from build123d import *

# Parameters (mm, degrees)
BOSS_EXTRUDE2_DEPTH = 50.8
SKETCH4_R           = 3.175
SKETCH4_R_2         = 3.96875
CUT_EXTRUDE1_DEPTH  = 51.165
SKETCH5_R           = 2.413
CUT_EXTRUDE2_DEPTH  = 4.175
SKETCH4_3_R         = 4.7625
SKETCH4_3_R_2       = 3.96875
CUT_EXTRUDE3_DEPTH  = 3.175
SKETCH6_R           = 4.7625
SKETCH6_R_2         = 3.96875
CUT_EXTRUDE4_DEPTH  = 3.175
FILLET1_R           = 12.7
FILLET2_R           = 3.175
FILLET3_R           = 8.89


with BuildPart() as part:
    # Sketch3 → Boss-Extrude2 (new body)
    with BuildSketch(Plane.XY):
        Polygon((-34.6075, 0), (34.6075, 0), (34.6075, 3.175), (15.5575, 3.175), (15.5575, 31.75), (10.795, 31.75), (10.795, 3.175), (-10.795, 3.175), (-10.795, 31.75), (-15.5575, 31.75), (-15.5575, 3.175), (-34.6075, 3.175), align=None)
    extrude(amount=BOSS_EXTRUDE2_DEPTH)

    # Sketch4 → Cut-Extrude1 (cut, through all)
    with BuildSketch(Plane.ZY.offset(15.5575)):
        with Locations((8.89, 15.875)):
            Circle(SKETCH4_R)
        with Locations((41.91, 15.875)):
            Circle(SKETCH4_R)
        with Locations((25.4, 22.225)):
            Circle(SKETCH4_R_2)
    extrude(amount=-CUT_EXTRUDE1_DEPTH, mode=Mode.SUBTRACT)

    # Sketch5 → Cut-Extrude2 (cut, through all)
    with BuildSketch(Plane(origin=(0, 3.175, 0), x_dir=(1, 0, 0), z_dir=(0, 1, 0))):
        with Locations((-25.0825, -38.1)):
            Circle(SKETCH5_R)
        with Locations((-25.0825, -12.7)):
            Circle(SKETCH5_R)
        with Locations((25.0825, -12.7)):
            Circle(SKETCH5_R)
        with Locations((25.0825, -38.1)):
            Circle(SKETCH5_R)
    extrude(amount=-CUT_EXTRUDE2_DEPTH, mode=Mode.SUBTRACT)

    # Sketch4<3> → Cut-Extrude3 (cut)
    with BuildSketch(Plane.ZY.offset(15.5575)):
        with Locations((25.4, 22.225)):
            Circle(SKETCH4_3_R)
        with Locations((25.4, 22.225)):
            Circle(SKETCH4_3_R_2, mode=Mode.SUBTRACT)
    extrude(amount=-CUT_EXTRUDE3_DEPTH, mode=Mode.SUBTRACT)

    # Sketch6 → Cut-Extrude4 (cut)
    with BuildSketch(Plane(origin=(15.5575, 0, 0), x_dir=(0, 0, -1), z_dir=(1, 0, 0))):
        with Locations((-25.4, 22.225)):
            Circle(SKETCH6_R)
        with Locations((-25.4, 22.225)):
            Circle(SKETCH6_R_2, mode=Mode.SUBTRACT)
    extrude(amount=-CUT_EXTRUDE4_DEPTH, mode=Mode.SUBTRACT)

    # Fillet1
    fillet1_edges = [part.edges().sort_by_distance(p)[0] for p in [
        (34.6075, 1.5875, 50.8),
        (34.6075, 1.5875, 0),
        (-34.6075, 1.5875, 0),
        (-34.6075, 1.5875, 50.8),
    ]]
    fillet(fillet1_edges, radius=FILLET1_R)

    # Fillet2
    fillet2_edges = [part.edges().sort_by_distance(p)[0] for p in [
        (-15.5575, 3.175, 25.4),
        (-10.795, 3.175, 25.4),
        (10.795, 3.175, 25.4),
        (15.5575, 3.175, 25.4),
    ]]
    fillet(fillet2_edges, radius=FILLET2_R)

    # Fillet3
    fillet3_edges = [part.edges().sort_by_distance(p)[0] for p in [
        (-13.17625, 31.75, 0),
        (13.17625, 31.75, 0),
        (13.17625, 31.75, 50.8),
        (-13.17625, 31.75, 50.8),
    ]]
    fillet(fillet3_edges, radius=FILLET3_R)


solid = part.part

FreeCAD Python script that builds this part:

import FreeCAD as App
import Part
import Sketcher
from FreeCAD import Vector
Q = App.Units.Quantity


def edges_at(feature, points):
    """Names of the edges that pass closest to the given points."""
    edges = feature.Shape.Edges
    near = lambda p: min(range(len(edges)), key=lambda i: edges[i].distToShape(Part.Vertex(*p))[0])
    return sorted({f"Edge{near(p) + 1}" for p in points})

doc = App.newDocument("Part")
params = doc.addObject("Spreadsheet::Sheet", "Params")
for row, (alias, value) in enumerate([
    ("sketch1_width", "0.75 in"),
    ("sketch1_width2", "0.85 in"),
    ("sketch1_width3", "2.725 in"),
    ("sketch1_height", "0.125 in"),
    ("sketch1_height2", "1.125 in"),
    ("pad1_length", "2 in"),
    ("sketch2_diameter", "0.25 in"),
    ("sketch2_diameter2", "0.3125 in"),
    ("sketch3_diameter", "0.19 in"),
    ("sketch4_diameter", "0.375 in"),
    ("sketch4_diameter2", "0.3125 in"),
    ("pocket3_length", "0.125 in"),
    ("sketch5_diameter", "0.375 in"),
    ("sketch5_diameter2", "0.3125 in"),
    ("pocket4_length", "0.125 in"),
    ("fillet_radius", "0.5 in"),
    ("fillet2_radius", "0.125 in"),
    ("fillet3_radius", "0.35 in"),
], start=1):
    params.set(f"A{row}", alias)
    params.set(f"B{row}", "=" + value)
    params.setAlias(f"B{row}", alias)

body = doc.addObject("PartDesign::Body", "Body")

# Sketch on XY plane
sketch1 = body.newObject("Sketcher::SketchObject", "Sketch")
sketch1.AttachmentSupport = (doc.getObject("XY_Plane"), [""])
sketch1.MapMode = "FlatFace"
sketch1.addGeometry([
    Part.LineSegment(Vector(-34.6075, 0, 0), Vector(34.6075, 0, 0)),  # 0
    Part.LineSegment(Vector(34.6075, 0, 0), Vector(34.6075, 3.175, 0)),  # 1
    Part.LineSegment(Vector(34.6075, 3.175, 0), Vector(15.5575, 3.175, 0)),  # 2
    Part.LineSegment(Vector(15.5575, 3.175, 0), Vector(15.5575, 31.75, 0)),  # 3
    Part.LineSegment(Vector(15.5575, 31.75, 0), Vector(10.795, 31.75, 0)),  # 4
    Part.LineSegment(Vector(10.795, 31.75, 0), Vector(10.795, 3.175, 0)),  # 5
    Part.LineSegment(Vector(10.795, 3.175, 0), Vector(-10.795, 3.175, 0)),  # 6
    Part.LineSegment(Vector(-10.795, 3.175, 0), Vector(-10.795, 31.75, 0)),  # 7
    Part.LineSegment(Vector(-10.795, 31.75, 0), Vector(-15.5575, 31.75, 0)),  # 8
    Part.LineSegment(Vector(-15.5575, 31.75, 0), Vector(-15.5575, 3.175, 0)),  # 9
    Part.LineSegment(Vector(-15.5575, 3.175, 0), Vector(-34.6075, 3.175, 0)),  # 10
    Part.LineSegment(Vector(-34.6075, 3.175, 0), Vector(-34.6075, 0, 0)),  # 11
], False)
sketch1.addConstraint([
    Sketcher.Constraint("Coincident", 0, 2, 1, 1),
    Sketcher.Constraint("Coincident", 1, 2, 2, 1),
    Sketcher.Constraint("Coincident", 2, 2, 3, 1),
    Sketcher.Constraint("Coincident", 3, 2, 4, 1),
    Sketcher.Constraint("Coincident", 4, 2, 5, 1),
    Sketcher.Constraint("Coincident", 5, 2, 6, 1),
    Sketcher.Constraint("Coincident", 6, 2, 7, 1),
    Sketcher.Constraint("Coincident", 7, 2, 8, 1),
    Sketcher.Constraint("Coincident", 8, 2, 9, 1),
    Sketcher.Constraint("Coincident", 9, 2, 10, 1),
    Sketcher.Constraint("Coincident", 10, 2, 11, 1),
    Sketcher.Constraint("Coincident", 11, 2, 0, 1),
    Sketcher.Constraint("Horizontal", 0),
    Sketcher.Constraint("Vertical", 1),
    Sketcher.Constraint("Horizontal", 2),
    Sketcher.Constraint("Vertical", 3),
    Sketcher.Constraint("Horizontal", 4),
    Sketcher.Constraint("Vertical", 5),
    Sketcher.Constraint("Horizontal", 6),
    Sketcher.Constraint("Vertical", 7),
    Sketcher.Constraint("Horizontal", 8),
    Sketcher.Constraint("Vertical", 9),
    Sketcher.Constraint("Horizontal", 10),
    Sketcher.Constraint("Vertical", 11),
    Sketcher.Constraint("Symmetric", 0, 2, 11, 2, -1, 1),
    Sketcher.Constraint("Symmetric", 4, 2, 7, 2, -2),
    Sketcher.Constraint("Symmetric", 2, 2, 9, 2, -2),
    Sketcher.Constraint("Horizontal", 2, 2, 5, 2),
    Sketcher.Constraint("DistanceX", 2, 2, 2, 1, Q("0.75 in")),
    Sketcher.Constraint("DistanceX", 6, 2, 6, 1, Q("0.85 in")),
    Sketcher.Constraint("DistanceX", 0, 1, 0, 2, Q("2.725 in")),
    Sketcher.Constraint("DistanceY", 1, 1, 1, 2, Q("0.125 in")),
    Sketcher.Constraint("DistanceY", 3, 1, 3, 2, Q("1.125 in")),
])
sketch1.setExpression("Constraints[28]", "Params.sketch1_width")
sketch1.setExpression("Constraints[29]", "Params.sketch1_width2")
sketch1.setExpression("Constraints[30]", "Params.sketch1_width3")
sketch1.setExpression("Constraints[31]", "Params.sketch1_height")
sketch1.setExpression("Constraints[32]", "Params.sketch1_height2")
pad1 = body.newObject("PartDesign::Pad", "Pad")
pad1.Profile = sketch1
pad1.setExpression("Length", "Params.pad1_length")

# Sketch on YZ plane
sketch2 = body.newObject("Sketcher::SketchObject", "Sketch001")
sketch2.AttachmentSupport = (doc.getObject("YZ_Plane"), [""])
sketch2.MapMode = "FlatFace"
sketch2.AttachmentOffset = App.Placement(Vector(0, 0, -0.6125 * 25.4), App.Rotation())
sketch2.addGeometry([
    Part.Circle(Vector(15.875, 8.89, 0), Vector(0, 0, 1), 3.175),
    Part.Circle(Vector(15.875, 41.91, 0), Vector(0, 0, 1), 3.175),
    Part.Circle(Vector(22.225, 25.4, 0), Vector(0, 0, 1), 3.96875),
], False)
sketch2.addConstraint([
    Sketcher.Constraint("Equal", 0, 1),
    Sketcher.Constraint("Vertical", 0, 3, 1, 3),
    Sketcher.Constraint("Diameter", 0, Q("0.25 in")),
    Sketcher.Constraint("Diameter", 2, Q("0.3125 in")),
    Sketcher.Constraint("DistanceY", -1, 1, 2, 3, Q("1 in")),
    Sketcher.Constraint("DistanceY", 0, 3, 1, 3, Q("1.3 in")),
    Sketcher.Constraint("DistanceY", -1, 1, 0, 3, Q("0.35 in")),
    Sketcher.Constraint("DistanceX", 0, 3, 2, 3, Q("0.25 in")),
    Sketcher.Constraint("DistanceX", -1, 1, 0, 3, Q("0.625 in")),
])
sketch2.setExpression("Constraints[2]", "Params.sketch2_diameter")
sketch2.setExpression("Constraints[3]", "Params.sketch2_diameter2")
pocket1 = body.newObject("PartDesign::Pocket", "Pocket")
pocket1.Profile = sketch2
pocket1.Type = "ThroughAll"
pocket1.Reversed = True

# Sketch on XZ plane
sketch3 = body.newObject("Sketcher::SketchObject", "Sketch002")
sketch3.AttachmentSupport = (doc.getObject("XZ_Plane"), [""])
sketch3.MapMode = "FlatFace"
sketch3.AttachmentOffset = App.Placement(Vector(0, 0, -0.125 * 25.4), App.Rotation())
sketch3.addGeometry([
    Part.Circle(Vector(-25.0825, 38.1, 0), Vector(0, 0, 1), 2.413),
    Part.Circle(Vector(-25.0825, 12.7, 0), Vector(0, 0, 1), 2.413),
    Part.Circle(Vector(25.0825, 12.7, 0), Vector(0, 0, 1), 2.413),
    Part.Circle(Vector(25.0825, 38.1, 0), Vector(0, 0, 1), 2.413),
], False)
sketch3.addConstraint([
    Sketcher.Constraint("Equal", 0, 1),
    Sketcher.Constraint("Equal", 1, 2),
    Sketcher.Constraint("Equal", 2, 3),
    Sketcher.Constraint("Symmetric", 1, 3, 2, 3, -2),
    Sketcher.Constraint("Symmetric", 0, 3, 3, 3, -2),
    Sketcher.Constraint("Vertical", 0, 3, 1, 3),
    Sketcher.Constraint("Diameter", 0, Q("0.19 in")),
    Sketcher.Constraint("DistanceY", 1, 3, 0, 3, Q("1 in")),
    Sketcher.Constraint("DistanceY", -1, 1, 0, 3, Q("1.5 in")),
    Sketcher.Constraint("DistanceX", 1, 3, 2, 3, Q("1.975 in")),
])
sketch3.setExpression("Constraints[6]", "Params.sketch3_diameter")
pocket2 = body.newObject("PartDesign::Pocket", "Pocket001")
pocket2.Profile = sketch3
pocket2.Type = "ThroughAll"
pocket2.Reversed = True

# Sketch on YZ plane
sketch4 = body.newObject("Sketcher::SketchObject", "Sketch003")
sketch4.AttachmentSupport = (doc.getObject("YZ_Plane"), [""])
sketch4.MapMode = "FlatFace"
sketch4.AttachmentOffset = App.Placement(Vector(0, 0, -0.6125 * 25.4), App.Rotation())
sketch4.addGeometry([
    Part.Circle(Vector(22.225, 25.4, 0), Vector(0, 0, 1), 4.7625),
    Part.Circle(Vector(22.225, 25.4, 0), Vector(0, 0, 1), 3.96875),
], False)
sketch4.addConstraint([
    Sketcher.Constraint("Coincident", 1, 3, 0, 3),
    Sketcher.Constraint("Diameter", 0, Q("0.375 in")),
    Sketcher.Constraint("Diameter", 1, Q("0.3125 in")),
    Sketcher.Constraint("DistanceY", -1, 1, 0, 3, Q("1 in")),
    Sketcher.Constraint("DistanceX", -1, 1, 0, 3, Q("0.875 in")),
])
sketch4.setExpression("Constraints[1]", "Params.sketch4_diameter")
sketch4.setExpression("Constraints[2]", "Params.sketch4_diameter2")
pocket3 = body.newObject("PartDesign::Pocket", "Pocket002")
pocket3.Profile = sketch4
pocket3.setExpression("Length", "Params.pocket3_length")
pocket3.Reversed = True

# Sketch on YZ plane
sketch5 = body.newObject("Sketcher::SketchObject", "Sketch004")
sketch5.AttachmentSupport = (doc.getObject("YZ_Plane"), [""])
sketch5.MapMode = "FlatFace"
sketch5.AttachmentOffset = App.Placement(Vector(0, 0, 0.6125 * 25.4), App.Rotation())
sketch5.addGeometry([
    Part.Circle(Vector(22.225, 25.4, 0), Vector(0, 0, 1), 4.7625),
    Part.Circle(Vector(22.225, 25.4, 0), Vector(0, 0, 1), 3.96875),
], False)
sketch5.addConstraint([
    Sketcher.Constraint("Coincident", 1, 3, 0, 3),
    Sketcher.Constraint("Diameter", 0, Q("0.375 in")),
    Sketcher.Constraint("Diameter", 1, Q("0.3125 in")),
    Sketcher.Constraint("DistanceY", -1, 1, 0, 3, Q("1 in")),
    Sketcher.Constraint("DistanceX", -1, 1, 0, 3, Q("0.875 in")),
])
sketch5.setExpression("Constraints[1]", "Params.sketch5_diameter")
sketch5.setExpression("Constraints[2]", "Params.sketch5_diameter2")
pocket4 = body.newObject("PartDesign::Pocket", "Pocket003")
pocket4.Profile = sketch5
pocket4.setExpression("Length", "Params.pocket4_length")
doc.recompute()

fillet = body.newObject("PartDesign::Fillet", "Fillet")
fillet.Base = (pocket4, edges_at(pocket4, [
    (34.608, 1.587, 50.8),
    (34.608, 1.587, 0),
    (-34.608, 1.587, 0),
    (-34.608, 1.587, 50.8),
]))
fillet.setExpression("Radius", "Params.fillet_radius")
doc.recompute()

fillet2 = body.newObject("PartDesign::Fillet", "Fillet001")
fillet2.Base = (fillet, edges_at(fillet, [
    (-15.557, 3.175, 25.4),
    (-10.795, 3.175, 25.4),
    (10.795, 3.175, 25.4),
    (15.557, 3.175, 25.4),
]))
fillet2.setExpression("Radius", "Params.fillet2_radius")
doc.recompute()

fillet3 = body.newObject("PartDesign::Fillet", "Fillet002")
fillet3.Base = (fillet2, edges_at(fillet2, [
    (-13.176, 31.75, 0),
    (13.176, 31.75, 0),
    (13.176, 31.75, 50.8),
    (-13.176, 31.75, 50.8),
]))
fillet3.setExpression("Radius", "Params.fillet3_radius")

doc.recompute()
